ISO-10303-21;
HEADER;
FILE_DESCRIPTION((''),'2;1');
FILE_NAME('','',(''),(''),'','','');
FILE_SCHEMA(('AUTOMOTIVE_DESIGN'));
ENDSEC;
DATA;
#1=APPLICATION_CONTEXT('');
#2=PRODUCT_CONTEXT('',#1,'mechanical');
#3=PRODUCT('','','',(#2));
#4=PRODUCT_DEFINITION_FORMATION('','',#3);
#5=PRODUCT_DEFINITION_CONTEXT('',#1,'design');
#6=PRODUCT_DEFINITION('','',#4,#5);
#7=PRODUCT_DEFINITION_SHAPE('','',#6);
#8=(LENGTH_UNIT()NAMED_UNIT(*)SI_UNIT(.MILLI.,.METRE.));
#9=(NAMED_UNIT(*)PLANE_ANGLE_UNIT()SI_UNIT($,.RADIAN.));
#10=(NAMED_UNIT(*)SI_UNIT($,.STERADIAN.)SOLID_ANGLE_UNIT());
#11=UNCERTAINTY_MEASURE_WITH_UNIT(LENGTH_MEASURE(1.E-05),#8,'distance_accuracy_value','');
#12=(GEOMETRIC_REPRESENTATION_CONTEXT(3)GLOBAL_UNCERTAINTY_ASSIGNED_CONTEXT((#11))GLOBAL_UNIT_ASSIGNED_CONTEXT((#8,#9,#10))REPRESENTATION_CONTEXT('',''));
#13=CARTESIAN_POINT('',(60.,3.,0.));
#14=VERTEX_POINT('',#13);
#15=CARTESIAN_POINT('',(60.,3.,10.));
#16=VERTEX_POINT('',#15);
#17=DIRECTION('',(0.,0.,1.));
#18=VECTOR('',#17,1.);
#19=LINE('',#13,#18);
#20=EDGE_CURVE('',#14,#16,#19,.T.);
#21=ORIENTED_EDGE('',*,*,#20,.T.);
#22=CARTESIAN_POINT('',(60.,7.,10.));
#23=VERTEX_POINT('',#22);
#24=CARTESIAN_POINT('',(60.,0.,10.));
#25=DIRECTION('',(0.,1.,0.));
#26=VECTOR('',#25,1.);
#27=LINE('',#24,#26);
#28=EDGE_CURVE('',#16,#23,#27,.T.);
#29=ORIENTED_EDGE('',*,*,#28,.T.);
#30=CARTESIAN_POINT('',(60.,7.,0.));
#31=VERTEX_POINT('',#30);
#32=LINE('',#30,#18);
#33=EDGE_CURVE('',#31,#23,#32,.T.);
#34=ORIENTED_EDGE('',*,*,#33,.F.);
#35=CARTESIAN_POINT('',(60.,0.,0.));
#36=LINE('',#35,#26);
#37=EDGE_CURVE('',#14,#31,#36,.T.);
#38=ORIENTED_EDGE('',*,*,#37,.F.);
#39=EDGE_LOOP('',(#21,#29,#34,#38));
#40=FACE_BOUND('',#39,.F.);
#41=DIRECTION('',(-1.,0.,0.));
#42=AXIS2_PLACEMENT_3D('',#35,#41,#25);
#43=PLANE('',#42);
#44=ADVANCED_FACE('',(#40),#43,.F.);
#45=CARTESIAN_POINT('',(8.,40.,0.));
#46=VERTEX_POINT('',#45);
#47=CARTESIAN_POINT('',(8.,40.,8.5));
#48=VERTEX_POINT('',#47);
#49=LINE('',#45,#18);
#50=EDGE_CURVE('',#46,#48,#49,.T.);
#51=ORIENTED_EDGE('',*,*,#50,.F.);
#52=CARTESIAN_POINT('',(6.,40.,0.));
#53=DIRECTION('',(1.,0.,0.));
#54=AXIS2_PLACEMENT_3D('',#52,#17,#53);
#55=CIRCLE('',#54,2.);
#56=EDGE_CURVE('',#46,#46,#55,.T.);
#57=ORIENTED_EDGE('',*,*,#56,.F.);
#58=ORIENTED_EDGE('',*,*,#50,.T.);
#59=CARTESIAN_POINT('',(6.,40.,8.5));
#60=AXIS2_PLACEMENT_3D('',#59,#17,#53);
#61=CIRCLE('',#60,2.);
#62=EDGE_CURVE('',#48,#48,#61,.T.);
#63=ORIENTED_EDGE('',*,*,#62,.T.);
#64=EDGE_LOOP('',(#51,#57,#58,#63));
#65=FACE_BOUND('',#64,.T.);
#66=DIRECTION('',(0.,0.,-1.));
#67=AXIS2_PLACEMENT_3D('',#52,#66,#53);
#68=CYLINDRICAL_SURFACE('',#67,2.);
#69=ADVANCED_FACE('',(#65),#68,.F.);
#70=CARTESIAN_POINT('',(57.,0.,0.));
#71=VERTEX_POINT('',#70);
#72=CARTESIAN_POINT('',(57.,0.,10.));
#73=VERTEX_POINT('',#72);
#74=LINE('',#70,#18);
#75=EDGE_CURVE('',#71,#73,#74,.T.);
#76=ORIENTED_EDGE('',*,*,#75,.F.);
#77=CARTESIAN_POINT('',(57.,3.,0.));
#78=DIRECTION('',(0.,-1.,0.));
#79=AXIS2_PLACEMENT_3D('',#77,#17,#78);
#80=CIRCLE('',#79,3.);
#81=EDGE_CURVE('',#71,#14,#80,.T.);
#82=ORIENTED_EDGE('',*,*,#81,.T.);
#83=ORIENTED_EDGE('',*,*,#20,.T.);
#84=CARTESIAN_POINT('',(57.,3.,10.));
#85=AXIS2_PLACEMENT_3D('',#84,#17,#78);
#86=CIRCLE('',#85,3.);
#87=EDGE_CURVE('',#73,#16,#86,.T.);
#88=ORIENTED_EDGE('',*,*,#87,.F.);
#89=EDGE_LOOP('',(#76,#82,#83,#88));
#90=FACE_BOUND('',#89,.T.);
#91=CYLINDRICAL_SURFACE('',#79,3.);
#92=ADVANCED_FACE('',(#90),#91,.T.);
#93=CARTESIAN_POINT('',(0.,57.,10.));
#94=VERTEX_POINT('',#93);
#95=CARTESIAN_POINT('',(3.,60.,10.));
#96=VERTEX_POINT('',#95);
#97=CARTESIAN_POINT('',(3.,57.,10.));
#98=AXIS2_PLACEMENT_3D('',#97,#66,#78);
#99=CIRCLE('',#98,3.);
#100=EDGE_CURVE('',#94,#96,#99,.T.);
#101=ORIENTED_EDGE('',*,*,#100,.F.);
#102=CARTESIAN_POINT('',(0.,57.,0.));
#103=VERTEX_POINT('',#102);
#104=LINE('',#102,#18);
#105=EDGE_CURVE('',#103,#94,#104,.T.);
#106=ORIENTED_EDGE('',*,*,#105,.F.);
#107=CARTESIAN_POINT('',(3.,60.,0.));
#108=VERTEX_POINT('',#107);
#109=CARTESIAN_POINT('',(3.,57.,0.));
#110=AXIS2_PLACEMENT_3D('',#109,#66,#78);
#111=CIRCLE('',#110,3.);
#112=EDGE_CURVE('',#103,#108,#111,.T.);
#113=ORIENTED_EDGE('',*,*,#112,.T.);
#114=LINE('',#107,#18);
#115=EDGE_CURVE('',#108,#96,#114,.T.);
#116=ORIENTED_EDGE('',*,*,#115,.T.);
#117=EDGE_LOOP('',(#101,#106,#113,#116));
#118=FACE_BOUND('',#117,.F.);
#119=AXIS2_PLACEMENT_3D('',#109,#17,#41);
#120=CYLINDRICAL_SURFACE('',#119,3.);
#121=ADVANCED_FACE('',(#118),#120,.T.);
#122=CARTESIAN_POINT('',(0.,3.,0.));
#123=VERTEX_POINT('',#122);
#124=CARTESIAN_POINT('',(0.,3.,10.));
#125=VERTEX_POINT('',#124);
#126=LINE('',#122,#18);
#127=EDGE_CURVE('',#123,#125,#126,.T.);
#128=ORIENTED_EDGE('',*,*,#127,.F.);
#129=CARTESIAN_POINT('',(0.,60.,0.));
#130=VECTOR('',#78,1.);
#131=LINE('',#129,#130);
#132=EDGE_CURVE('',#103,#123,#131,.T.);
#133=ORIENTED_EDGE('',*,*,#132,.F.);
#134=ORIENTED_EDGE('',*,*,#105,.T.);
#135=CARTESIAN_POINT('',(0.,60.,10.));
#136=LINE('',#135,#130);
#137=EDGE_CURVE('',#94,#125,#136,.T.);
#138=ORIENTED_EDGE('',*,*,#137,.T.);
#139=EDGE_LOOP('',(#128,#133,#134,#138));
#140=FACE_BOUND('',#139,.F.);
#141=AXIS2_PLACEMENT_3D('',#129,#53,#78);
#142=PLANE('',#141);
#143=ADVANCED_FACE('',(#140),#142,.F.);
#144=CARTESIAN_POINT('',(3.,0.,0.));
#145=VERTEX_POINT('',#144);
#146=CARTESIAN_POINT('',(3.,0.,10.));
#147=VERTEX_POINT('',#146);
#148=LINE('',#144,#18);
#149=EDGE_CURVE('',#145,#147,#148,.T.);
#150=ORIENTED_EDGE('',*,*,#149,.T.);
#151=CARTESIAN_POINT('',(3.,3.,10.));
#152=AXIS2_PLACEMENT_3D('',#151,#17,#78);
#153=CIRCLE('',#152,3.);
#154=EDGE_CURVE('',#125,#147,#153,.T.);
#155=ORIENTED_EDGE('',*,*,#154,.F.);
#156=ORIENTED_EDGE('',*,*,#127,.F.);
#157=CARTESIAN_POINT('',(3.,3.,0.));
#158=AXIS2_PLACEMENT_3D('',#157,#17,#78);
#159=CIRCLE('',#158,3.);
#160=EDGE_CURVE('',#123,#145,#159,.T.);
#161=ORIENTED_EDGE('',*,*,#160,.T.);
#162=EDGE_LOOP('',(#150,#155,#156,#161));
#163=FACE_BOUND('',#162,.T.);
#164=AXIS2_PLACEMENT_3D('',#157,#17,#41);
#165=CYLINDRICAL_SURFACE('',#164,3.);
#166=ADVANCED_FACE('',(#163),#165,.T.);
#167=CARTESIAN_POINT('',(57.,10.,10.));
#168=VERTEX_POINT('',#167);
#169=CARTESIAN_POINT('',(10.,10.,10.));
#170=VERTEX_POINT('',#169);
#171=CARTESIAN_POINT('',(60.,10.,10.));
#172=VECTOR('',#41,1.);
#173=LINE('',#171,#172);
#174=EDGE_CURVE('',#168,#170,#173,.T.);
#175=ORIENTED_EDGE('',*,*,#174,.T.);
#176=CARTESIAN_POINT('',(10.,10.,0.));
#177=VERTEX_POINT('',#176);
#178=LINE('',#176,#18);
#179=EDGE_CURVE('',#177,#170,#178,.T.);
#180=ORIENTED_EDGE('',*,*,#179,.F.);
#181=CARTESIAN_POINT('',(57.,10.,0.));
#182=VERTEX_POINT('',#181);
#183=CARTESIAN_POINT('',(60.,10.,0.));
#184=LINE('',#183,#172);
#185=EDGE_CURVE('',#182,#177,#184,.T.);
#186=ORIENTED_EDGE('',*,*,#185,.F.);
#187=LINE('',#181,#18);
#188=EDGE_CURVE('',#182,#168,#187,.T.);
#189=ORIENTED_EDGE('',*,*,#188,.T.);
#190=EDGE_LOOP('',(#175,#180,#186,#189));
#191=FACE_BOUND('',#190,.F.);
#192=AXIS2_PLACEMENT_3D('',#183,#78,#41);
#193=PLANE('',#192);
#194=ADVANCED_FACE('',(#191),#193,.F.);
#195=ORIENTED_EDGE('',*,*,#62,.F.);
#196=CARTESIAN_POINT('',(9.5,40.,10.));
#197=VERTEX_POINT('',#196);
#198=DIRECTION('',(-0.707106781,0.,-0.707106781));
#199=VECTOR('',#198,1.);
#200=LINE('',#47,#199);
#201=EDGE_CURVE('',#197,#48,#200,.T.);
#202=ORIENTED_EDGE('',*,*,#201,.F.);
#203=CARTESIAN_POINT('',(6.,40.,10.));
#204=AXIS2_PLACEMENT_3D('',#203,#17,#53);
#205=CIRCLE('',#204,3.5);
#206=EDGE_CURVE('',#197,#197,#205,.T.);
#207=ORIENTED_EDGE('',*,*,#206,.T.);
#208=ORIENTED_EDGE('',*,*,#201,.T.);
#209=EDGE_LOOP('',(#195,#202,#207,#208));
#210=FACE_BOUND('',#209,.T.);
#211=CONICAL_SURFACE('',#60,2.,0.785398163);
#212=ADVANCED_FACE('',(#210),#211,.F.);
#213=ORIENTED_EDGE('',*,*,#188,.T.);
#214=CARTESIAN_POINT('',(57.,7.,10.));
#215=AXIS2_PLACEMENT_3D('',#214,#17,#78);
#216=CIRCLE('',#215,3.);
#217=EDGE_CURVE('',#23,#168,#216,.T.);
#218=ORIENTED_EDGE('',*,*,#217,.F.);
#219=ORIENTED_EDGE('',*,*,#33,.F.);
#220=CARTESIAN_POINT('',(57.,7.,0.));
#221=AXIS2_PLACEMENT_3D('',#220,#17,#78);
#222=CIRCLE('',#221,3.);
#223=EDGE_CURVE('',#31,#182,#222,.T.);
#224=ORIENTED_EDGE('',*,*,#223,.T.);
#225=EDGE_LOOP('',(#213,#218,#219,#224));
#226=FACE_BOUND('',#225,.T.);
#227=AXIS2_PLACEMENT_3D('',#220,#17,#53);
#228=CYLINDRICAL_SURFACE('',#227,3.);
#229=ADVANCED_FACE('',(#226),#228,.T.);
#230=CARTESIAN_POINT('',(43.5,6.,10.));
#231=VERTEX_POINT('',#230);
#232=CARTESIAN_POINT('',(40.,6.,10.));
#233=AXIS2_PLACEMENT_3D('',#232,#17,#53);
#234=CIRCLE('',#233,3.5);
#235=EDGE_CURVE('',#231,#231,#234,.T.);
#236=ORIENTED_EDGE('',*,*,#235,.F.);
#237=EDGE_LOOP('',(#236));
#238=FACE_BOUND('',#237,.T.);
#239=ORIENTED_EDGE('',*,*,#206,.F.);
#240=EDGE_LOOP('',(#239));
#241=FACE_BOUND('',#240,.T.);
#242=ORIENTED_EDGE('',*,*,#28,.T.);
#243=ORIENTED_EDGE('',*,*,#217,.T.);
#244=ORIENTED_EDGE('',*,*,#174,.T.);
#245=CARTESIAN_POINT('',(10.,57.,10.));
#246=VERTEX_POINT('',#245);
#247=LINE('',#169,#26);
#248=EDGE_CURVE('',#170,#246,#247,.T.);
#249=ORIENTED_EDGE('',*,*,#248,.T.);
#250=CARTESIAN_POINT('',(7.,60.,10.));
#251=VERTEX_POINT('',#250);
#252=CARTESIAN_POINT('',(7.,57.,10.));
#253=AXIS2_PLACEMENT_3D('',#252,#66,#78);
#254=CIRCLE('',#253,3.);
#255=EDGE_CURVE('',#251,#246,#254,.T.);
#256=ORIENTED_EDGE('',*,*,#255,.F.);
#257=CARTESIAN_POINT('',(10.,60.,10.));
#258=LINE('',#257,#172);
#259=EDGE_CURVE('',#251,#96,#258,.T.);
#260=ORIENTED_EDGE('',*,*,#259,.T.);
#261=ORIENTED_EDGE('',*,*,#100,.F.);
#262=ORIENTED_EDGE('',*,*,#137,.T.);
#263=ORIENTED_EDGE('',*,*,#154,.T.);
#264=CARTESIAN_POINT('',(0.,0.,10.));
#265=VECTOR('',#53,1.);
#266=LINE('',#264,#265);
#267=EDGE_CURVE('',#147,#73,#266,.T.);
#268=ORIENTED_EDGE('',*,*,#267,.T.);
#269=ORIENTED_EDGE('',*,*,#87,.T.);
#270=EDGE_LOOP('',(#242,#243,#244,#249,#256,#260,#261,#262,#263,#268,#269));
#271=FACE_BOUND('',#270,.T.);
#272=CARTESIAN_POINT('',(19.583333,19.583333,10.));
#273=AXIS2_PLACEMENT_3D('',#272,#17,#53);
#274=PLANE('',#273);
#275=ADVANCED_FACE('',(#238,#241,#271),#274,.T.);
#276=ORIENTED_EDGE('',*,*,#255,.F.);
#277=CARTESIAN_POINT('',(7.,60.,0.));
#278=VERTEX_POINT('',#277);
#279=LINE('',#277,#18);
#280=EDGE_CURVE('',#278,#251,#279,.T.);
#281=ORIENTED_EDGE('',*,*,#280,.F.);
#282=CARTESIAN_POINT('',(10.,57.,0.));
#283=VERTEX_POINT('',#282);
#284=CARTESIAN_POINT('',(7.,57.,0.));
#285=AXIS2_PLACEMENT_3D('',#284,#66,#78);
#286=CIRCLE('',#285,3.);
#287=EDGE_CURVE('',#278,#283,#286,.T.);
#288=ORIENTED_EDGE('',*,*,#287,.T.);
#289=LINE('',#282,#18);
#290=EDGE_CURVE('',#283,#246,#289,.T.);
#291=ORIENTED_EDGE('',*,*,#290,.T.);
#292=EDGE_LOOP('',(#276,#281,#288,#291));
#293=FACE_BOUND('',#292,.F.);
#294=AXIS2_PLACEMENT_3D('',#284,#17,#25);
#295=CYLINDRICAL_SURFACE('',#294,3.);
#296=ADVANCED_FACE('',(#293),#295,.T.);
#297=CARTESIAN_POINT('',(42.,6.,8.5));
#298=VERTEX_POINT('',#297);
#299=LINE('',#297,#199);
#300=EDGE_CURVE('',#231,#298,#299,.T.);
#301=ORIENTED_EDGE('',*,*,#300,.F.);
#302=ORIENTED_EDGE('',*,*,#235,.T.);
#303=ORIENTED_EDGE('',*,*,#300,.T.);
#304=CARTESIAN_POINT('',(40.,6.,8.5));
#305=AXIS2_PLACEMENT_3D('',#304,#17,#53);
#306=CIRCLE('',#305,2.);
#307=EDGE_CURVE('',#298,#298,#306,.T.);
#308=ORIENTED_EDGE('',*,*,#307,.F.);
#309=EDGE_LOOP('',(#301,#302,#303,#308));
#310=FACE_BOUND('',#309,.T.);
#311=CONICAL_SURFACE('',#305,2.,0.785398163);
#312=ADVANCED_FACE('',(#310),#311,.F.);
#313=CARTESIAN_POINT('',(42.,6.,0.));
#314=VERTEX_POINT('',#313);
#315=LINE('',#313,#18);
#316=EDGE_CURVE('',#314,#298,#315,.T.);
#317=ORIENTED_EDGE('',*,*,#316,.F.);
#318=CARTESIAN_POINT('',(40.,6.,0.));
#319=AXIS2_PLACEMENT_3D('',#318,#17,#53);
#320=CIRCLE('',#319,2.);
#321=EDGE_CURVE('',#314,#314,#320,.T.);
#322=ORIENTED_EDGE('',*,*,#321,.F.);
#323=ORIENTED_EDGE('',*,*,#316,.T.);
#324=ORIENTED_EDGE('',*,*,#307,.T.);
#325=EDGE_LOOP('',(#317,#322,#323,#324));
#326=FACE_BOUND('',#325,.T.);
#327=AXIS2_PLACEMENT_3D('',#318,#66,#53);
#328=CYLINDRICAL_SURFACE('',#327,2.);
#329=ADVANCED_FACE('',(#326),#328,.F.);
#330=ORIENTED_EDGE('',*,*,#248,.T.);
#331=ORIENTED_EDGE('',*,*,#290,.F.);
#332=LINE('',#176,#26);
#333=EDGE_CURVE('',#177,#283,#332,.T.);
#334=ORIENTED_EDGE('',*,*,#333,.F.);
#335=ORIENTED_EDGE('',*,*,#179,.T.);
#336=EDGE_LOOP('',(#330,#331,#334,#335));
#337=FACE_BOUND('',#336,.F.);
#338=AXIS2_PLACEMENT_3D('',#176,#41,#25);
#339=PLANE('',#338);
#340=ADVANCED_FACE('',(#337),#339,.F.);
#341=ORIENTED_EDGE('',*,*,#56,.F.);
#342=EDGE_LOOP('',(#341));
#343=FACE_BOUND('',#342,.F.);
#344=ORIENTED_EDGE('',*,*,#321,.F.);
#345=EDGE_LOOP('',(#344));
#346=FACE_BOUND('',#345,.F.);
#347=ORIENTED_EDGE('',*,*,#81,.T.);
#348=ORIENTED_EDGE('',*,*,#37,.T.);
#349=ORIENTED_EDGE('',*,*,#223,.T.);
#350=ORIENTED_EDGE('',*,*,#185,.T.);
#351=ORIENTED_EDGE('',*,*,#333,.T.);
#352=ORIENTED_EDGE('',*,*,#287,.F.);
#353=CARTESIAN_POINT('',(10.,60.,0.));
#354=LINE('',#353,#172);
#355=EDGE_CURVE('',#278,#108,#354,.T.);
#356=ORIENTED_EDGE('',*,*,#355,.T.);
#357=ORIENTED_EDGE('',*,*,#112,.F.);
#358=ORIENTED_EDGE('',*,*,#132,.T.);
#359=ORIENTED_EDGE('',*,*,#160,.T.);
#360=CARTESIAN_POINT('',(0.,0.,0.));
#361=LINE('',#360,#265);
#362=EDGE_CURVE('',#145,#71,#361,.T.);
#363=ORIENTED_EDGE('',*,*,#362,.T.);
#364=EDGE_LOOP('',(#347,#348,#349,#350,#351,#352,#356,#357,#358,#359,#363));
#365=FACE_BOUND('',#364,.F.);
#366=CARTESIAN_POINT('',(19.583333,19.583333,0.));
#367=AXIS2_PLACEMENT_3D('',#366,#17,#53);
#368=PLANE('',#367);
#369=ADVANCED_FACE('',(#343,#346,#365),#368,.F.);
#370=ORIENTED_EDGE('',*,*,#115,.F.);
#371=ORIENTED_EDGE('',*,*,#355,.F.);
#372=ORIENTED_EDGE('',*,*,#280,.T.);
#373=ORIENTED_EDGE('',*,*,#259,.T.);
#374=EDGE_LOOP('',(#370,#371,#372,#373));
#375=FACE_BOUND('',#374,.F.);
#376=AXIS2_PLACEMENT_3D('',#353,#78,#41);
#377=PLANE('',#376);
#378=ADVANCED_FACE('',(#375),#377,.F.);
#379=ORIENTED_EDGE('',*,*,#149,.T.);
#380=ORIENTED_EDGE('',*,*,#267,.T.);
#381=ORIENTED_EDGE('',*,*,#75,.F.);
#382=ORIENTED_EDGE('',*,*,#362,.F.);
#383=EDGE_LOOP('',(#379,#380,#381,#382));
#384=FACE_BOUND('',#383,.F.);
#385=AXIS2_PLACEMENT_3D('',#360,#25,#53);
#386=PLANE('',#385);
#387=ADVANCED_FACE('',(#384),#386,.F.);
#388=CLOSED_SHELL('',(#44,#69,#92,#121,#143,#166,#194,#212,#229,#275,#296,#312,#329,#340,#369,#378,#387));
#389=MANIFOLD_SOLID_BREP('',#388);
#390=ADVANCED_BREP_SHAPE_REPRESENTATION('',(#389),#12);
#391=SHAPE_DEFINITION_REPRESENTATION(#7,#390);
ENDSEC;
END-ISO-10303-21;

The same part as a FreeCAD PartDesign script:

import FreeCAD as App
import Part
import Sketcher


def edges_at(feature, points):
    """Names of the edges that pass closest to the given points."""
    edges = feature.Shape.Edges
    near = lambda p: min(range(len(edges)), key=lambda i: edges[i].distToShape(Part.Vertex(*p))[0])
    return sorted({f"Edge{near(p) + 1}" for p in points})


def add_polygon(sketch, points):
    """Adds a closed chain of lines whose ends are joined by coincident constraints."""
    first, n = sketch.GeometryCount, len(points)
    for a, b in zip(points, points[1:] + points[:1]):
        sketch.addGeometry(Part.LineSegment(App.Vector(*a, 0), App.Vector(*b, 0)), False)
    for i in range(n):
        sketch.addConstraint(Sketcher.Constraint("Coincident", first + i, 2, first + (i + 1) % n, 1))

doc = App.newDocument("Part")
params = doc.addObject("Spreadsheet::Sheet", "Params")
for row, (alias, value) in enumerate([
    ("sketch1_diameter", "4 mm"),
    ("sketch1_width", "60 mm"),
    ("sketch1_width2", "50 mm"),
    ("pad1_length", "10 mm"),
    ("fillet_radius", "3 mm"),
    ("chamfer_size", "1.5 mm"),
], start=1):
    params.set(f"A{row}", alias)
    params.set(f"B{row}", "=" + value)
    params.setAlias(f"B{row}", alias)

body = doc.addObject("PartDesign::Body", "Body")

sketch1 = body.newObject("Sketcher::SketchObject", "Sketch")
sketch1.AttachmentSupport = (doc.getObject("XY_Plane"), [""])
sketch1.MapMode = "FlatFace"
add_polygon(sketch1, [(0, 60), (0, 0), (60, 0), (60, 10), (10, 10), (10, 60)])
sketch1.addGeometry(Part.Circle(App.Vector(40, 6, 0), App.Vector(0, 0, 1), 2), False)
sketch1.addGeometry(Part.Circle(App.Vector(6, 40, 0), App.Vector(0, 0, 1), 2), False)
sketch1.addConstraint(Sketcher.Constraint("Vertical", 0))
sketch1.addConstraint(Sketcher.Constraint("Horizontal", 1))
sketch1.addConstraint(Sketcher.Constraint("Vertical", 2))
sketch1.addConstraint(Sketcher.Constraint("Horizontal", 3))
sketch1.addConstraint(Sketcher.Constraint("Vertical", 4))
sketch1.addConstraint(Sketcher.Constraint("Horizontal", 5))
sketch1.addConstraint(Sketcher.Constraint("Coincident", 0, 2, -1, 1))
sketch1.addConstraint(Sketcher.Constraint("Equal", 6, 7))
sketch1.addConstraint(Sketcher.Constraint("Equal", 1, 0))
sketch1.addConstraint(Sketcher.Constraint("Equal", 5, 2))
sketch1.addConstraint(Sketcher.Constraint("Diameter", 6, 4.0))
sketch1.addConstraint(Sketcher.Constraint("DistanceX", 1, 1, 1, 2, 60.0))
sketch1.addConstraint(Sketcher.Constraint("DistanceX", 3, 2, 3, 1, 50.0))
sketch1.addConstraint(Sketcher.Constraint("DistanceX", -1, 1, 6, 3, 40.0))
sketch1.addConstraint(Sketcher.Constraint("DistanceY", -1, 1, 6, 3, 6.0))
sketch1.addConstraint(Sketcher.Constraint("DistanceX", -1, 1, 7, 3, 6.0))
sketch1.addConstraint(Sketcher.Constraint("DistanceY", -1, 1, 7, 3, 40.0))
sketch1.setExpression("Constraints[16]", "Params.sketch1_diameter")
sketch1.setExpression("Constraints[17]", "Params.sketch1_width")
sketch1.setExpression("Constraints[18]", "Params.sketch1_width2")
pad1 = body.newObject("PartDesign::Pad", "Pad")
pad1.Profile = sketch1
pad1.setExpression("Length", "Params.pad1_length")
doc.recompute()

fillet = body.newObject("PartDesign::Fillet", "Fillet")
fillet.Base = (pad1, edges_at(pad1, [
    (0, 0, 5),
    (60, 0, 5),
    (60, 10, 5),
    (10, 60, 5),
    (0, 60, 5),
]))
fillet.setExpression("Radius", "Params.fillet_radius")
doc.recompute()

chamfer = body.newObject("PartDesign::Chamfer", "Chamfer")
chamfer.Base = (fillet, edges_at(fillet, [(4, 40, 10), (38, 6, 10)]))
chamfer.setExpression("Size", "Params.chamfer_size")

doc.recompute()
